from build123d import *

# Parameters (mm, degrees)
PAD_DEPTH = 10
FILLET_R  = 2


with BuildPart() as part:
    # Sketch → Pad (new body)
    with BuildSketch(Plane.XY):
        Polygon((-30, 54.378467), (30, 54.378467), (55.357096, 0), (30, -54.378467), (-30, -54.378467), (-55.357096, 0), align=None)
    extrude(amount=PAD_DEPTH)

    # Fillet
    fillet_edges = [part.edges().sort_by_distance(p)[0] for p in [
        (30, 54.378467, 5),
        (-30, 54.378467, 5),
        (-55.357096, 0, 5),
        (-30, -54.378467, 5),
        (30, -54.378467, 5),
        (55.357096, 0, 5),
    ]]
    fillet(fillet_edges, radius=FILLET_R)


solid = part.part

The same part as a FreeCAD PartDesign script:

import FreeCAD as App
import Part
import Sketcher

V = App.Vector
Q = App.Units.Quantity


def edges_at(feature, points):
    """Names of the edges that pass closest to the given points."""
    edges = feature.Shape.Edges
    near = lambda p: min(range(len(edges)), key=lambda i: edges[i].distToShape(Part.Vertex(*p))[0])
    return sorted({f"Edge{near(p) + 1}" for p in points})

doc = App.newDocument("Part")
params = doc.addObject("Spreadsheet::Sheet", "Params")
for row, (alias, value) in enumerate([
    ("sketch1_width", "60 mm"),
    ("sketch1_length", "60 mm"),
    ("pad1_length", "10 mm"),
    ("fillet_radius", "2 mm"),
], start=1):
    params.set(f"A{row}", alias)
    params.set(f"B{row}", "=" + value)
    params.setAlias(f"B{row}", alias)

body = doc.addObject("PartDesign::Body", "Body")

sketch1 = body.newObject("Sketcher::SketchObject", "Sketch")
sketch1.AttachmentSupport = (doc.getObject("XY_Plane"), [""])
sketch1.MapMode = "FlatFace"
sketch1.addGeometry([
    Part.LineSegment(V(30, 54.378467, 0), V(-30, 54.378467, 0)),
    Part.LineSegment(V(-30, 54.378467, 0), V(-55.357096, 0, 0)),
    Part.LineSegment(V(-55.357096, 0, 0), V(-30, -54.378467, 0)),
    Part.LineSegment(V(-30, -54.378467, 0), V(30, -54.378467, 0)),
    Part.LineSegment(V(30, -54.378467, 0), V(55.357096, 0, 0)),
    Part.LineSegment(V(55.357096, 0, 0), V(30, 54.378467, 0)),
], False)
sketch1.addConstraint([
    Sketcher.Constraint("Coincident", 0, 2, 1, 1),
    Sketcher.Constraint("Coincident", 1, 2, 2, 1),
    Sketcher.Constraint("Coincident", 2, 2, 3, 1),
    Sketcher.Constraint("Coincident", 3, 2, 4, 1),
    Sketcher.Constraint("Coincident", 4, 2, 5, 1),
    Sketcher.Constraint("Coincident", 5, 2, 0, 1),
    Sketcher.Constraint("Horizontal", 0),
    Sketcher.Constraint("Horizontal", 3),
    Sketcher.Constraint("Symmetric", 0, 2, 3, 2, -1, 1),
    Sketcher.Constraint("Symmetric", 1, 2, 4, 2, -1, 1),
    Sketcher.Constraint("PointOnObject", 1, 2, -1),
    Sketcher.Constraint("Parallel", 2, 5),
    Sketcher.Constraint("Vertical", 0, 2, 2, 2),
    Sketcher.Constraint("DistanceX", 0, 2, 0, 1, Q("60 mm")),
    Sketcher.Constraint("Angle", 1, Q("-115 deg")),
    Sketcher.Constraint("Distance", 1, Q("60 mm")),
])
sketch1.setExpression("Constraints[13]", "Params.sketch1_width")
sketch1.setExpression("Constraints[15]", "Params.sketch1_length")
pad1 = body.newObject("PartDesign::Pad", "Pad")
pad1.Profile = sketch1
pad1.setExpression("Length", "Params.pad1_length")
doc.recompute()

fillet = body.newObject("PartDesign::Fillet", "Fillet")
fillet.Base = (pad1, edges_at(pad1, [
    (30, 54.378, 5),
    (-30, 54.378, 5),
    (-55.357, 0, 5),
    (-30, -54.378, 5),
    (30, -54.378, 5),
    (55.357, 0, 5),
]))
fillet.setExpression("Radius", "Params.fillet_radius")

doc.recompute()
